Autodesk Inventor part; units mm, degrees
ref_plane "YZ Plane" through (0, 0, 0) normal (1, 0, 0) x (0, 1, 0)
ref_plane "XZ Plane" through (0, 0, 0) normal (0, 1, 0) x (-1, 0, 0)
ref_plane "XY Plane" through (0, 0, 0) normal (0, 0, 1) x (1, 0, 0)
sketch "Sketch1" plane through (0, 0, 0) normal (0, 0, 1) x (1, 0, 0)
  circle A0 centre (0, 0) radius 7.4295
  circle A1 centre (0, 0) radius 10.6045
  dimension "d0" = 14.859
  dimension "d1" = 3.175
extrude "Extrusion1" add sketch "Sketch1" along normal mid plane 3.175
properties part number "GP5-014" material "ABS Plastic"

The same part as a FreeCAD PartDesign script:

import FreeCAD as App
import Part
import Sketcher

V = App.Vector
Q = App.Units.Quantity

doc = App.newDocument("Part")
params = doc.addObject("Spreadsheet::Sheet", "Params")
for row, (alias, value) in enumerate([
    ("sketch1_diameter", "0.585 in"),
    ("sketch1_diameter2", "0.835 in"),
    ("pad1_length", "0.125 in"),
], start=1):
    params.set(f"A{row}", alias)
    params.set(f"B{row}", "=" + value)
    params.setAlias(f"B{row}", alias)

body = doc.addObject("PartDesign::Body", "Body")

# Sketch on XY plane
sketch1 = doc.addObject("Sketcher::SketchObject", "Sketch")
body.addObject(sketch1)
sketch1.AttachmentSupport = (doc.XY_Plane, [""])
sketch1.MapMode = "FlatFace"
sketch1.addGeometry(Part.Circle(V(0, 0, 0), V(0, 0, 1), 11), False)
sketch1.addGeometry(Part.Circle(V(0, 0, 0), V(0, 0, 1), 7), False)
sketch1.addConstraint(Sketcher.Constraint("Coincident", 0, 3, -1, 1))
sketch1.addConstraint(Sketcher.Constraint("Coincident", 1, 3, -1, 1))
sketch1.addConstraint(Sketcher.Constraint("Diameter", 1, Q("0.585 in")))
sketch1.addConstraint(Sketcher.Constraint("Diameter", 0, Q("0.835 in")))
sketch1.setExpression("Constraints[2]", "Params.sketch1_diameter")
sketch1.setExpression("Constraints[3]", "Params.sketch1_diameter2")
pad1 = doc.addObject("PartDesign::Pad", "Pad")
body.addObject(pad1)
pad1.Profile = sketch1
pad1.setExpression("Length", "Params.pad1_length")
pad1.Midplane = True

doc.recompute()
